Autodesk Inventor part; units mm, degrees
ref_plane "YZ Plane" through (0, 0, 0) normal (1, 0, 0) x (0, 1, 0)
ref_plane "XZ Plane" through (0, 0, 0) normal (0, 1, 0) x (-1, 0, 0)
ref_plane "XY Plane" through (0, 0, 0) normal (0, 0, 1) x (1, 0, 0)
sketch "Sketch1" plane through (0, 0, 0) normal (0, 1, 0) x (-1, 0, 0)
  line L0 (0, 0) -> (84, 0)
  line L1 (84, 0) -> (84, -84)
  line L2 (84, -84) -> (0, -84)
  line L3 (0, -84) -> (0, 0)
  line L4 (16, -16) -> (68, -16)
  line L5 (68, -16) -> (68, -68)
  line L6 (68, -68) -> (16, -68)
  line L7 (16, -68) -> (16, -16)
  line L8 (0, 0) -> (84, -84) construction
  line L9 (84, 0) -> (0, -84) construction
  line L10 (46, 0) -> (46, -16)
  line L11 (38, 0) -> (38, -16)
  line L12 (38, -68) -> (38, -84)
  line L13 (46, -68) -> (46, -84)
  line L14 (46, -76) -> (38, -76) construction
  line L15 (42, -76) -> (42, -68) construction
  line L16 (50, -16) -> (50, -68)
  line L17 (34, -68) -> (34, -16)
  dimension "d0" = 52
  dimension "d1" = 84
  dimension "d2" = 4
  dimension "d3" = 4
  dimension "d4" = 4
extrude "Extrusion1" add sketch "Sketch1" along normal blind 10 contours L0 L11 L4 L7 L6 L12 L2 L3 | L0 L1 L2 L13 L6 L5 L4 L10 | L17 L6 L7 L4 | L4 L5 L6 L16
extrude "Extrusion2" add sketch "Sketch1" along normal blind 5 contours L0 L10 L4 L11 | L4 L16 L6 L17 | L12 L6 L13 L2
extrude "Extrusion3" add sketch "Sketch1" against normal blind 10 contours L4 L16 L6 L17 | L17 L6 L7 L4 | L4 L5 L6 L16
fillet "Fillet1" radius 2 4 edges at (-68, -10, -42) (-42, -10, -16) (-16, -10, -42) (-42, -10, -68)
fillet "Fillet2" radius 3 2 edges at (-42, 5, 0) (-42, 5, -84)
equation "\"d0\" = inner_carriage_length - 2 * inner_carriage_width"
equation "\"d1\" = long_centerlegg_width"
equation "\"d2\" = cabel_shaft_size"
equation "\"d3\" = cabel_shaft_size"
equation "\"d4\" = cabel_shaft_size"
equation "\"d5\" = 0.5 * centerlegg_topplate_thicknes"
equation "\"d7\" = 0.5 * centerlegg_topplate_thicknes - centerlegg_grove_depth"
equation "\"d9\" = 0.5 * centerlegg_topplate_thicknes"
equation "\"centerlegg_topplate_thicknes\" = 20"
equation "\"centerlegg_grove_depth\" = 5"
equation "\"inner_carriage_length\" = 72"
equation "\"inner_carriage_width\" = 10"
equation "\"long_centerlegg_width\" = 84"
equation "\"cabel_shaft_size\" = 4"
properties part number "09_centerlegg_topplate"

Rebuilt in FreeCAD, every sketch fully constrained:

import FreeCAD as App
import Part
import Sketcher
from FreeCAD import Vector
Q = App.Units.Quantity


def edges_at(feature, points):
    """Names of the edges that pass closest to the given points."""
    edges = feature.Shape.Edges
    near = lambda p: min(range(len(edges)), key=lambda i: edges[i].distToShape(Part.Vertex(*p))[0])
    return sorted({f"Edge{near(p) + 1}" for p in points})

doc = App.newDocument("Part")
params = doc.addObject("Spreadsheet::Sheet", "Params")
for row, (alias, value) in enumerate([
    ("sketch1_width", "4 mm"),
    ("sketch1_height", "84 mm"),
    ("sketch1_height2", "52 mm"),
    ("sketch1_width2", "38 mm"),
    ("pad1_length", "10 mm"),
    ("sketch2_width", "4 mm"),
    ("sketch2_height", "52 mm"),
    ("sketch2_width2", "8 mm"),
    ("pad2_length", "5 mm"),
    ("sketch3_width", "52 mm"),
    ("pad3_length", "10 mm"),
    ("fillet_radius", "2 mm"),
    ("fillet2_radius", "3 mm"),
], start=1):
    params.set(f"A{row}", alias)
    params.set(f"B{row}", "=" + value)
    params.setAlias(f"B{row}", alias)

body = doc.addObject("PartDesign::Body", "Body")
body.AllowCompound = True

sketch1 = body.newObject("Sketcher::SketchObject", "Sketch")
sketch1.AttachmentSupport = (doc.getObject("XZ_Plane"), [""])
sketch1.MapMode = "FlatFace"
sketch1.addGeometry([
    Part.LineSegment(Vector(-38, 0, 0), Vector(0, 0, 0)),
    Part.LineSegment(Vector(0, 0, 0), Vector(0, -84, 0)),
    Part.LineSegment(Vector(0, -84, 0), Vector(-38, -84, 0)),
    Part.LineSegment(Vector(-38, -84, 0), Vector(-38, -68, 0)),
    Part.LineSegment(Vector(-38, -68, 0), Vector(-34, -68, 0)),
    Part.LineSegment(Vector(-34, -68, 0), Vector(-34, -16, 0)),
    Part.LineSegment(Vector(-34, -16, 0), Vector(-38, -16, 0)),
    Part.LineSegment(Vector(-38, -16, 0), Vector(-38, 0, 0)),
    Part.LineSegment(Vector(-84, 0, 0), Vector(-46, 0, 0)),
    Part.LineSegment(Vector(-46, 0, 0), Vector(-46, -16, 0)),
    Part.LineSegment(Vector(-46, -16, 0), Vector(-50, -16, 0)),
    Part.LineSegment(Vector(-50, -16, 0), Vector(-50, -68, 0)),
    Part.LineSegment(Vector(-50, -68, 0), Vector(-46, -68, 0)),
    Part.LineSegment(Vector(-46, -68, 0), Vector(-46, -84, 0)),
    Part.LineSegment(Vector(-46, -84, 0), Vector(-84, -84, 0)),
    Part.LineSegment(Vector(-84, -84, 0), Vector(-84, 0, 0)),
], False)
sketch1.addConstraint([
    Sketcher.Constraint("Coincident", 0, 2, 1, 1),
    Sketcher.Constraint("Coincident", 1, 2, 2, 1),
    Sketcher.Constraint("Coincident", 2, 2, 3, 1),
    Sketcher.Constraint("Coincident", 3, 2, 4, 1),
    Sketcher.Constraint("Coincident", 4, 2, 5, 1),
    Sketcher.Constraint("Coincident", 5, 2, 6, 1),
    Sketcher.Constraint("Coincident", 6, 2, 7, 1),
    Sketcher.Constraint("Coincident", 7, 2, 0, 1),
    Sketcher.Constraint("Coincident", 8, 2, 9, 1),
    Sketcher.Constraint("Coincident", 9, 2, 10, 1),
    Sketcher.Constraint("Coincident", 10, 2, 11, 1),
    Sketcher.Constraint("Coincident", 11, 2, 12, 1),
    Sketcher.Constraint("Coincident", 12, 2, 13, 1),
    Sketcher.Constraint("Coincident", 13, 2, 14, 1),
    Sketcher.Constraint("Coincident", 14, 2, 15, 1),
    Sketcher.Constraint("Coincident", 15, 2, 8, 1),
    Sketcher.Constraint("Horizontal", 0),
    Sketcher.Constraint("Vertical", 1),
    Sketcher.Constraint("Horizontal", 2),
    Sketcher.Constraint("Vertical", 3),
    Sketcher.Constraint("Horizontal", 4),
    Sketcher.Constraint("Vertical", 5),
    Sketcher.Constraint("Horizontal", 6),
    Sketcher.Constraint("Vertical", 7),
    Sketcher.Constraint("Horizontal", 8),
    Sketcher.Constraint("Vertical", 9),
    Sketcher.Constraint("Horizontal", 10),
    Sketcher.Constraint("Vertical", 11),
    Sketcher.Constraint("Horizontal", 12),
    Sketcher.Constraint("Vertical", 13),
    Sketcher.Constraint("Horizontal", 14),
    Sketcher.Constraint("Vertical", 15),
    Sketcher.Constraint("Coincident", 0, 2, -1, 1),
    Sketcher.Constraint("PointOnObject", 8, 2, -1),
    Sketcher.Constraint("Horizontal", 6, 2, 9, 2),
    Sketcher.Constraint("Horizontal", 4, 2, 11, 2),
    Sketcher.Constraint("Horizontal", 2, 2, 13, 2),
    Sketcher.Constraint("Vertical", 3, 2, 6, 2),
    Sketcher.Constraint("Vertical", 9, 2, 12, 2),
    Sketcher.Constraint("Equal", 2, 8),
    Sketcher.Constraint("Equal", 6, 10),
    Sketcher.Constraint("Equal", 3, 7),
    Sketcher.Constraint("DistanceX", 4, 1, 4, 2, Q("4 mm")),
    Sketcher.Constraint("DistanceY", 1, 2, 1, 1, Q("84 mm")),
    Sketcher.Constraint("DistanceY", 5, 1, 5, 2, Q("52 mm")),
    Sketcher.Constraint("DistanceX", 14, 2, -1, 1, Q("84 mm")),
    Sketcher.Constraint("DistanceX", 0, 1, 0, 2, Q("38 mm")),
])
sketch1.setExpression("Constraints[42]", "Params.sketch1_width")
sketch1.setExpression("Constraints[43]", "Params.sketch1_height")
sketch1.setExpression("Constraints[44]", "Params.sketch1_height2")
sketch1.setExpression("Constraints[46]", "Params.sketch1_width2")
pad1 = body.newObject("PartDesign::Pad", "Pad")
pad1.Profile = sketch1
pad1.setExpression("Length", "Params.pad1_length")
pad1.Reversed = True

sketch2 = body.newObject("Sketcher::SketchObject", "Sketch001")
sketch2.AttachmentSupport = (doc.getObject("XZ_Plane"), [""])
sketch2.MapMode = "FlatFace"
sketch2.addGeometry([
    Part.LineSegment(Vector(-46, 0, 0), Vector(-38, 0, 0)),
    Part.LineSegment(Vector(-38, 0, 0), Vector(-38, -16, 0)),
    Part.LineSegment(Vector(-38, -16, 0), Vector(-34, -16, 0)),
    Part.LineSegment(Vector(-34, -16, 0), Vector(-34, -68, 0)),
    Part.LineSegment(Vector(-34, -68, 0), Vector(-38, -68, 0)),
    Part.LineSegment(Vector(-38, -68, 0), Vector(-38, -84, 0)),
    Part.LineSegment(Vector(-38, -84, 0), Vector(-46, -84, 0)),
    Part.LineSegment(Vector(-46, -84, 0), Vector(-46, -68, 0)),
    Part.LineSegment(Vector(-46, -68, 0), Vector(-50, -68, 0)),
    Part.LineSegment(Vector(-50, -68, 0), Vector(-50, -16, 0)),
    Part.LineSegment(Vector(-50, -16, 0), Vector(-46, -16, 0)),
    Part.LineSegment(Vector(-46, -16, 0), Vector(-46, 0, 0)),
], False)
sketch2.addConstraint([
    Sketcher.Constraint("Coincident", 0, 2, 1, 1),
    Sketcher.Constraint("Coincident", 1, 2, 2, 1),
    Sketcher.Constraint("Coincident", 2, 2, 3, 1),
    Sketcher.Constraint("Coincident", 3, 2, 4, 1),
    Sketcher.Constraint("Coincident", 4, 2, 5, 1),
    Sketcher.Constraint("Coincident", 5, 2, 6, 1),
    Sketcher.Constraint("Coincident", 6, 2, 7, 1),
    Sketcher.Constraint("Coincident", 7, 2, 8, 1),
    Sketcher.Constraint("Coincident", 8, 2, 9, 1),
    Sketcher.Constraint("Coincident", 9, 2, 10, 1),
    Sketcher.Constraint("Coincident", 10, 2, 11, 1),
    Sketcher.Constraint("Coincident", 11, 2, 0, 1),
    Sketcher.Constraint("Horizontal", 0),
    Sketcher.Constraint("Vertical", 1),
    Sketcher.Constraint("Horizontal", 2),
    Sketcher.Constraint("Vertical", 3),
    Sketcher.Constraint("Horizontal", 4),
    Sketcher.Constraint("Vertical", 5),
    Sketcher.Constraint("Horizontal", 6),
    Sketcher.Constraint("Vertical", 7),
    Sketcher.Constraint("Horizontal", 8),
    Sketcher.Constraint("Vertical", 9),
    Sketcher.Constraint("Horizontal", 10),
    Sketcher.Constraint("Vertical", 11),
    Sketcher.Constraint("PointOnObject", 0, 2, -1),
    Sketcher.Constraint("Horizontal", 4, 2, 7, 2),
    Sketcher.Constraint("Horizontal", 2, 2, 9, 2),
    Sketcher.Constraint("Vertical", 1, 2, 4, 2),
    Sketcher.Constraint("Vertical", 7, 2, 10, 2),
    Sketcher.Constraint("Equal", 4, 8),
    Sketcher.Constraint("Equal", 1, 5),
    Sketcher.Constraint("DistanceX", 2, 1, 2, 2, Q("4 mm")),
    Sketcher.Constraint("DistanceY", 3, 2, 3, 1, Q("52 mm")),
    Sketcher.Constraint("DistanceY", 5, 2, -1, 1, Q("84 mm")),
    Sketcher.Constraint("DistanceX", 0, 1, 0, 2, Q("8 mm")),
    Sketcher.Constraint("DistanceX", 0, 2, -1, 1, Q("38 mm")),
])
sketch2.setExpression("Constraints[31]", "Params.sketch2_width")
sketch2.setExpression("Constraints[32]", "Params.sketch2_height")
sketch2.setExpression("Constraints[34]", "Params.sketch2_width2")
pad2 = body.newObject("PartDesign::Pad", "Pad001")
pad2.Profile = sketch2
pad2.setExpression("Length", "Params.pad2_length")
pad2.Reversed = True

sketch3 = body.newObject("Sketcher::SketchObject", "Sketch002")
sketch3.AttachmentSupport = (doc.getObject("XZ_Plane"), [""])
sketch3.MapMode = "FlatFace"
sketch3.addGeometry([
    Part.LineSegment(Vector(-16, -16, 0), Vector(-16, -68, 0)),
    Part.LineSegment(Vector(-16, -68, 0), Vector(-68, -68, 0)),
    Part.LineSegment(Vector(-68, -68, 0), Vector(-68, -16, 0)),
    Part.LineSegment(Vector(-68, -16, 0), Vector(-16, -16, 0)),
], False)
sketch3.addConstraint([
    Sketcher.Constraint("Coincident", 0, 2, 1, 1),
    Sketcher.Constraint("Coincident", 1, 2, 2, 1),
    Sketcher.Constraint("Coincident", 2, 2, 3, 1),
    Sketcher.Constraint("Coincident", 3, 2, 0, 1),
    Sketcher.Constraint("Vertical", 0),
    Sketcher.Constraint("Horizontal", 1),
    Sketcher.Constraint("Vertical", 2),
    Sketcher.Constraint("Horizontal", 3),
    Sketcher.Constraint("Equal", 3, 0),
    Sketcher.Constraint("DistanceX", 1, 2, 1, 1, Q("52 mm")),
    Sketcher.Constraint("DistanceX", 0, 2, -1, 1, Q("16 mm")),
    Sketcher.Constraint("DistanceY", 0, 2, -1, 1, Q("68 mm")),
])
sketch3.setExpression("Constraints[9]", "Params.sketch3_width")
pad3 = body.newObject("PartDesign::Pad", "Pad002")
pad3.Profile = sketch3
pad3.setExpression("Length", "Params.pad3_length")
doc.recompute()

fillet = body.newObject("PartDesign::Fillet", "Fillet")
fillet.Base = (pad3, edges_at(pad3, [
    (-68, -10, -42),
    (-42, -10, -16),
    (-16, -10, -42),
    (-42, -10, -68),
]))
fillet.setExpression("Radius", "Params.fillet_radius")
doc.recompute()

fillet2 = body.newObject("PartDesign::Fillet", "Fillet001")
fillet2.Base = (fillet, edges_at(fillet, [(-42, 5, 0), (-42, 5, -84)]))
fillet2.setExpression("Radius", "Params.fillet2_radius")

doc.recompute()
